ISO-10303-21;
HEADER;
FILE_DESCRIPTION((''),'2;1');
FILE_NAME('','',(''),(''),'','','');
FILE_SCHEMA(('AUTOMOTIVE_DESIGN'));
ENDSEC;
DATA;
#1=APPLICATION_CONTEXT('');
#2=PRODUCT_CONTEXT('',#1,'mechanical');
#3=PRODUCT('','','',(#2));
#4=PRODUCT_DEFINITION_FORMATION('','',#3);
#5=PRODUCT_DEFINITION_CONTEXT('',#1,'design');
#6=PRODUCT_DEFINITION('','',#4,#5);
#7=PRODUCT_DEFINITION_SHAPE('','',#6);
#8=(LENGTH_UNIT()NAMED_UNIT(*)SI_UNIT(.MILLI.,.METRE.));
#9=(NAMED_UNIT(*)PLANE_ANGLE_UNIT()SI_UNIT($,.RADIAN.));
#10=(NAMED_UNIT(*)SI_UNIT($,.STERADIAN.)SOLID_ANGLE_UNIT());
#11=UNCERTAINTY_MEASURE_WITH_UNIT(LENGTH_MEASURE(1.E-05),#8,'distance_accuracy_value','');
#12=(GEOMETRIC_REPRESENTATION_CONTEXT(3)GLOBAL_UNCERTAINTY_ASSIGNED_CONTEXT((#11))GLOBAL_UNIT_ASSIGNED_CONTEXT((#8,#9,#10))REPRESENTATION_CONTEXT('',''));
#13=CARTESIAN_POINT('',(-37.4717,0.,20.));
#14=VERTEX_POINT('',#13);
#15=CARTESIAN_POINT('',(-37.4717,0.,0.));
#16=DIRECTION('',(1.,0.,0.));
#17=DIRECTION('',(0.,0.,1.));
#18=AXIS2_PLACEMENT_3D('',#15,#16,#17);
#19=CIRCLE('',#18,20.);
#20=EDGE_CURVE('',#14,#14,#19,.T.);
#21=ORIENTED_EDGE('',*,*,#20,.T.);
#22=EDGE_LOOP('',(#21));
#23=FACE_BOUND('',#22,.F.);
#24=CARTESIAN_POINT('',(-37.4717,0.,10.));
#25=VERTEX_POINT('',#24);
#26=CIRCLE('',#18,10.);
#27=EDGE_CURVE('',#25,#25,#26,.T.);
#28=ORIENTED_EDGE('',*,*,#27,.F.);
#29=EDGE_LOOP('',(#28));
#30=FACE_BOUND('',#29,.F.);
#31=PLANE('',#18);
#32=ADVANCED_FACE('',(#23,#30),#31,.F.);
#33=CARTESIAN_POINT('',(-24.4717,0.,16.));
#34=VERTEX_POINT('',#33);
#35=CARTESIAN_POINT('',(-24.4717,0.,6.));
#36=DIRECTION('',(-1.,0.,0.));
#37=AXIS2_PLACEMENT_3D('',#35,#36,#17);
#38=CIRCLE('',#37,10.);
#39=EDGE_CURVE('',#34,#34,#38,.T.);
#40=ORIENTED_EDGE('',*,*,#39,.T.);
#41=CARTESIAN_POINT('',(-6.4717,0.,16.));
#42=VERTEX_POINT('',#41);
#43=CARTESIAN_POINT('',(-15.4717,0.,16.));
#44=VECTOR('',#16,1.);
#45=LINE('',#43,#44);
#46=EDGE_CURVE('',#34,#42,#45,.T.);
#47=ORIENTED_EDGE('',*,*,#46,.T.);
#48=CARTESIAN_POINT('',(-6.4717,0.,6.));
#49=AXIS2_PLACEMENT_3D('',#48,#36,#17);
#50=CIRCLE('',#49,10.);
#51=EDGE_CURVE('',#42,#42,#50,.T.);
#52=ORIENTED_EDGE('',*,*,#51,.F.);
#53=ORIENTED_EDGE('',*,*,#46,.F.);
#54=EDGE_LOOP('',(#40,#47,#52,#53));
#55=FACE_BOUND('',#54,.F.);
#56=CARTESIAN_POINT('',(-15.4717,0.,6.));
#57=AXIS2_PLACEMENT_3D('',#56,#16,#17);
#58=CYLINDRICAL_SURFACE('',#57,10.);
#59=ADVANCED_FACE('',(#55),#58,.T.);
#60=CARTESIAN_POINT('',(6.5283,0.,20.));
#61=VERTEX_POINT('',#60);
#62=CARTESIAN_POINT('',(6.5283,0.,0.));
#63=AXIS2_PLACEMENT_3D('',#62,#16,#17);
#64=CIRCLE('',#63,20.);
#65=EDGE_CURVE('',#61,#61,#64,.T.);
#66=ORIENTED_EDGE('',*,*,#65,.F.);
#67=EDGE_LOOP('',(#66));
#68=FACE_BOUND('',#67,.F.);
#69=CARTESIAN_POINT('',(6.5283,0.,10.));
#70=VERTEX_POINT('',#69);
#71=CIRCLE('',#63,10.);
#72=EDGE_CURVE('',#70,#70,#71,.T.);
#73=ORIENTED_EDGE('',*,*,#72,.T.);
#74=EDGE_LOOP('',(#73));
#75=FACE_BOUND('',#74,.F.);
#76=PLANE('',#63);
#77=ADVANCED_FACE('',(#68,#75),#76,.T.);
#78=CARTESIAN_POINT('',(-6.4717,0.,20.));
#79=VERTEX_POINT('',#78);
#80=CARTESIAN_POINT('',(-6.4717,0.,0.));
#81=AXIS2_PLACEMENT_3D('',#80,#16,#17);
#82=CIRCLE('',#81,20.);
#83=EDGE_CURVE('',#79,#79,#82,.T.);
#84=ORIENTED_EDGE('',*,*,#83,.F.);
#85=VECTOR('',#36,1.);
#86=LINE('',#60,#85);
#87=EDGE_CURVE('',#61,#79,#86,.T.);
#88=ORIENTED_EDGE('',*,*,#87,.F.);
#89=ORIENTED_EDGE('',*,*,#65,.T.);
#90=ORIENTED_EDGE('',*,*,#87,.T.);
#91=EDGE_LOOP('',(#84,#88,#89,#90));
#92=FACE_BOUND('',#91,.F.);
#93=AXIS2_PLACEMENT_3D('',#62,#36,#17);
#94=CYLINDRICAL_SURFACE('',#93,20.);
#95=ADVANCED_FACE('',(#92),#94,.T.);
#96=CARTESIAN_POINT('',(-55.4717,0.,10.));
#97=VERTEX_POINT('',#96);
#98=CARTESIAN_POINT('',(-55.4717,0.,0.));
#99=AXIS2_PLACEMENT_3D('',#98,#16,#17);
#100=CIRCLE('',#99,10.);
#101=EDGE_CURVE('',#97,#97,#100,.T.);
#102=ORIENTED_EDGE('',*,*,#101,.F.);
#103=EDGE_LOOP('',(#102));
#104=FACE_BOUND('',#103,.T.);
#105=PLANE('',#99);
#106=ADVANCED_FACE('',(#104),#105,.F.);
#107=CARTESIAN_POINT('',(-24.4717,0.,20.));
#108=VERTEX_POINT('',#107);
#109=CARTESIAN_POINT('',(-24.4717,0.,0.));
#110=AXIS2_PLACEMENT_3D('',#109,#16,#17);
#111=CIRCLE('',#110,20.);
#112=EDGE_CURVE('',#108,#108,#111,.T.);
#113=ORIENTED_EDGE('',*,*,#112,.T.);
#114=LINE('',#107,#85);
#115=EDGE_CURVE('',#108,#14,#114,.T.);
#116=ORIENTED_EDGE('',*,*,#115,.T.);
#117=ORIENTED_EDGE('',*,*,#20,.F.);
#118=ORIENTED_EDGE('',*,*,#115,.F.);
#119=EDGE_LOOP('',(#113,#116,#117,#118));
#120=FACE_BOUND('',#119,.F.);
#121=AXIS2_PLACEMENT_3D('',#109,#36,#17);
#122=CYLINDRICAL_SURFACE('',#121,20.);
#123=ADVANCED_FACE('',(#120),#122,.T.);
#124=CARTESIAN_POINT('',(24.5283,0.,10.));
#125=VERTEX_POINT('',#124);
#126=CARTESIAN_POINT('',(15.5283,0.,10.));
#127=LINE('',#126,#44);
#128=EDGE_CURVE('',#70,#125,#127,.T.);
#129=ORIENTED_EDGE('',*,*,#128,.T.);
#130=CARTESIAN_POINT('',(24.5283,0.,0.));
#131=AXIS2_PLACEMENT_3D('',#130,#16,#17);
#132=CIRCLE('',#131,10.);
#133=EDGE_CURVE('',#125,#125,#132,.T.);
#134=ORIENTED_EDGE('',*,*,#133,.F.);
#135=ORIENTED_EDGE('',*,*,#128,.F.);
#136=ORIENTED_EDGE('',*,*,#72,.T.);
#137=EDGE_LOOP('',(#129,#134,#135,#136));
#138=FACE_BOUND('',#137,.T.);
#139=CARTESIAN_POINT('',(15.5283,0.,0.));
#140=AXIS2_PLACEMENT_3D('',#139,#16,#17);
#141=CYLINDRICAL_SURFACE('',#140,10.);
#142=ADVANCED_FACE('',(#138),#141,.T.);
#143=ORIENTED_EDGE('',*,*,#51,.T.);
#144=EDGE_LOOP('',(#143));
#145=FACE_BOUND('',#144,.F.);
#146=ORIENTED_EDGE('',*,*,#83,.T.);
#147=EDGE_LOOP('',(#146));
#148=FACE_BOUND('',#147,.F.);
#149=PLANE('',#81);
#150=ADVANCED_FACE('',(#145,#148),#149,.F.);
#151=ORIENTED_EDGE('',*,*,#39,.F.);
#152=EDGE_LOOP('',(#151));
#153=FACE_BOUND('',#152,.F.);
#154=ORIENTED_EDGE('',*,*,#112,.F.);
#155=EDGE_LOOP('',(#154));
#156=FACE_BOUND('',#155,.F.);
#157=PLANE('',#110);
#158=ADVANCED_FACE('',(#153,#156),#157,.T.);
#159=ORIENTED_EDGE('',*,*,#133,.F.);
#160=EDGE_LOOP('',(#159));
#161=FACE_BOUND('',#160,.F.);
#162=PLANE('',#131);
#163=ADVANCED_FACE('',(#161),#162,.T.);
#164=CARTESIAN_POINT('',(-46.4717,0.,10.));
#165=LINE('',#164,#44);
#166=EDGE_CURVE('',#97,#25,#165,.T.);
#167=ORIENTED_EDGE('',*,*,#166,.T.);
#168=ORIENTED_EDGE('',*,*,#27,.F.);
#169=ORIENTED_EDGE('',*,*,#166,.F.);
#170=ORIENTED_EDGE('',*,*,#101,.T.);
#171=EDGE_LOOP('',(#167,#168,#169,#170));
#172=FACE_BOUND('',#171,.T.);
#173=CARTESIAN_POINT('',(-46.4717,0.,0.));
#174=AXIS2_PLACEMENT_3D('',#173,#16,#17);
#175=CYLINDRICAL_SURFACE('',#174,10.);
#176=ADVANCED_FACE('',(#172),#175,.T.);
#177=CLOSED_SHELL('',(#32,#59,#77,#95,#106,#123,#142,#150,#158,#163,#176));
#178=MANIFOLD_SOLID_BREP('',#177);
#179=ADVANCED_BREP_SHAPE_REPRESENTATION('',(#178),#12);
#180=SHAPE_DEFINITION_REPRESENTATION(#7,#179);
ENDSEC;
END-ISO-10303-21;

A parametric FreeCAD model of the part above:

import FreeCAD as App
import Part
import Sketcher
from FreeCAD import Vector

doc = App.newDocument("Part")
body = doc.addObject("PartDesign::Body", "Body")
body.AllowCompound = True

sketch1 = doc.addObject("Sketcher::SketchObject", "Sketch")
body.addObject(sketch1)
sketch1.AttachmentSupport = (doc.XZ_Plane, [""])
sketch1.MapMode = "FlatFace"
sketch1.addGeometry(Part.LineSegment(Vector(-55, 10, 0), Vector(-55, 0, 0)), False)
sketch1.addGeometry(Part.LineSegment(Vector(-55, 0, 0), Vector(-24, 0, 0)), False)
sketch1.addGeometry(Part.LineSegment(Vector(-24, 0, 0), Vector(-24, 20, 0)), False)
sketch1.addGeometry(Part.LineSegment(Vector(-24, 20, 0), Vector(-37, 20, 0)), False)
sketch1.addGeometry(Part.LineSegment(Vector(-37, 20, 0), Vector(-37, 10, 0)), False)
sketch1.addGeometry(Part.LineSegment(Vector(-37, 10, 0), Vector(-55, 10, 0)), False)
sketch1.addGeometry(Part.LineSegment(Vector(-6, 0, 0), Vector(25, 0, 0)), False)
sketch1.addGeometry(Part.LineSegment(Vector(25, 0, 0), Vector(25, 10, 0)), False)
sketch1.addGeometry(Part.LineSegment(Vector(25, 10, 0), Vector(7, 10, 0)), False)
sketch1.addGeometry(Part.LineSegment(Vector(7, 10, 0), Vector(7, 20, 0)), False)
sketch1.addGeometry(Part.LineSegment(Vector(7, 20, 0), Vector(-6, 20, 0)), False)
sketch1.addGeometry(Part.LineSegment(Vector(-6, 20, 0), Vector(-6, 0, 0)), False)
sketch1.addConstraint(Sketcher.Constraint("Coincident", 0, 2, 1, 1))
sketch1.addConstraint(Sketcher.Constraint("Coincident", 1, 2, 2, 1))
sketch1.addConstraint(Sketcher.Constraint("Coincident", 2, 2, 3, 1))
sketch1.addConstraint(Sketcher.Constraint("Coincident", 3, 2, 4, 1))
sketch1.addConstraint(Sketcher.Constraint("Coincident", 4, 2, 5, 1))
sketch1.addConstraint(Sketcher.Constraint("Coincident", 5, 2, 0, 1))
sketch1.addConstraint(Sketcher.Constraint("Coincident", 6, 2, 7, 1))
sketch1.addConstraint(Sketcher.Constraint("Coincident", 7, 2, 8, 1))
sketch1.addConstraint(Sketcher.Constraint("Coincident", 8, 2, 9, 1))
sketch1.addConstraint(Sketcher.Constraint("Coincident", 9, 2, 10, 1))
sketch1.addConstraint(Sketcher.Constraint("Coincident", 10, 2, 11, 1))
sketch1.addConstraint(Sketcher.Constraint("Coincident", 11, 2, 6, 1))
sketch1.addConstraint(Sketcher.Constraint("Vertical", 0))
sketch1.addConstraint(Sketcher.Constraint("Horizontal", 1))
sketch1.addConstraint(Sketcher.Constraint("Vertical", 2))
sketch1.addConstraint(Sketcher.Constraint("Horizontal", 3))
sketch1.addConstraint(Sketcher.Constraint("Vertical", 4))
sketch1.addConstraint(Sketcher.Constraint("Horizontal", 5))
sketch1.addConstraint(Sketcher.Constraint("Horizontal", 6))
sketch1.addConstraint(Sketcher.Constraint("Vertical", 7))
sketch1.addConstraint(Sketcher.Constraint("Horizontal", 8))
sketch1.addConstraint(Sketcher.Constraint("Vertical", 9))
sketch1.addConstraint(Sketcher.Constraint("Horizontal", 10))
sketch1.addConstraint(Sketcher.Constraint("Vertical", 11))
sketch1.addConstraint(Sketcher.Constraint("PointOnObject", 0, 2, -1))
sketch1.addConstraint(Sketcher.Constraint("PointOnObject", 6, 2, -1))
sketch1.addConstraint(Sketcher.Constraint("Horizontal", 5, 2, 7, 2))
sketch1.addConstraint(Sketcher.Constraint("Horizontal", 3, 2, 9, 2))
sketch1.addConstraint(Sketcher.Constraint("Equal", 1, 6))
sketch1.addConstraint(Sketcher.Constraint("Equal", 5, 8))
sketch1.addConstraint(Sketcher.Constraint("Equal", 0, 4))
sketch1.addConstraint(Sketcher.Constraint("DistanceX", 1, 1, 1, 2, 31.0))
sketch1.addConstraint(Sketcher.Constraint("DistanceX", 3, 2, 3, 1, 13.0))
sketch1.addConstraint(Sketcher.Constraint("DistanceY", 0, 2, 0, 1, 10.0))
sketch1.addConstraint(Sketcher.Constraint("DistanceX", 1, 2, 6, 2, 49.0))
sketch1.addConstraint(Sketcher.Constraint("DistanceX", 0, 2, -1, 1, 55.4717))
revolution = doc.addObject("PartDesign::Revolution", "Revolution")
body.addObject(revolution)
revolution.Profile = sketch1
revolution.ReferenceAxis = (sketch1, ["H_Axis"])
revolution.Angle = 360

sketch2 = doc.addObject("Sketcher::SketchObject", "Sketch001")
body.addObject(sketch2)
sketch2.AttachmentSupport = (doc.XZ_Plane, [""])
sketch2.MapMode = "FlatFace"
sketch2.addGeometry(Part.LineSegment(Vector(-24, 16, 0), Vector(-24, 6, 0)), False)
sketch2.addGeometry(Part.LineSegment(Vector(-24, 6, 0), Vector(-6, 6, 0)), False)
sketch2.addGeometry(Part.LineSegment(Vector(-6, 6, 0), Vector(-6, 16, 0)), False)
sketch2.addGeometry(Part.LineSegment(Vector(-6, 16, 0), Vector(-24, 16, 0)), False)
sketch2.addGeometry(Part.LineSegment(Vector(-6, 6, 0), Vector(-24, 6, 0)), True)
sketch2.addConstraint(Sketcher.Constraint("Coincident", 0, 2, 1, 1))
sketch2.addConstraint(Sketcher.Constraint("Coincident", 1, 2, 2, 1))
sketch2.addConstraint(Sketcher.Constraint("Coincident", 2, 2, 3, 1))
sketch2.addConstraint(Sketcher.Constraint("Coincident", 3, 2, 0, 1))
sketch2.addConstraint(Sketcher.Constraint("Vertical", 0))
sketch2.addConstraint(Sketcher.Constraint("Horizontal", 1))
sketch2.addConstraint(Sketcher.Constraint("Vertical", 2))
sketch2.addConstraint(Sketcher.Constraint("Horizontal", 3))
sketch2.addConstraint(Sketcher.Constraint("Horizontal", 4))
sketch2.addConstraint(Sketcher.Constraint("Coincident", 4, 1, 1, 2))
sketch2.addConstraint(Sketcher.Constraint("Vertical", 3, 2, 4, 2))
sketch2.addConstraint(Sketcher.Constraint("DistanceX", 1, 1, 1, 2, 18.0))
sketch2.addConstraint(Sketcher.Constraint("DistanceY", 0, 2, 0, 1, 10.0))
sketch2.addConstraint(Sketcher.Constraint("DistanceY", -1, 1, 0, 2, 6.0))
sketch2.addConstraint(Sketcher.Constraint("DistanceX", 0, 2, -1, 1, 24.4717))
revolution2 = doc.addObject("PartDesign::Revolution", "Revolution001")
body.addObject(revolution2)
revolution2.Profile = sketch2
revolution2.ReferenceAxis = (sketch2, ["Axis0"])
revolution2.Angle = 360

doc.recompute()
